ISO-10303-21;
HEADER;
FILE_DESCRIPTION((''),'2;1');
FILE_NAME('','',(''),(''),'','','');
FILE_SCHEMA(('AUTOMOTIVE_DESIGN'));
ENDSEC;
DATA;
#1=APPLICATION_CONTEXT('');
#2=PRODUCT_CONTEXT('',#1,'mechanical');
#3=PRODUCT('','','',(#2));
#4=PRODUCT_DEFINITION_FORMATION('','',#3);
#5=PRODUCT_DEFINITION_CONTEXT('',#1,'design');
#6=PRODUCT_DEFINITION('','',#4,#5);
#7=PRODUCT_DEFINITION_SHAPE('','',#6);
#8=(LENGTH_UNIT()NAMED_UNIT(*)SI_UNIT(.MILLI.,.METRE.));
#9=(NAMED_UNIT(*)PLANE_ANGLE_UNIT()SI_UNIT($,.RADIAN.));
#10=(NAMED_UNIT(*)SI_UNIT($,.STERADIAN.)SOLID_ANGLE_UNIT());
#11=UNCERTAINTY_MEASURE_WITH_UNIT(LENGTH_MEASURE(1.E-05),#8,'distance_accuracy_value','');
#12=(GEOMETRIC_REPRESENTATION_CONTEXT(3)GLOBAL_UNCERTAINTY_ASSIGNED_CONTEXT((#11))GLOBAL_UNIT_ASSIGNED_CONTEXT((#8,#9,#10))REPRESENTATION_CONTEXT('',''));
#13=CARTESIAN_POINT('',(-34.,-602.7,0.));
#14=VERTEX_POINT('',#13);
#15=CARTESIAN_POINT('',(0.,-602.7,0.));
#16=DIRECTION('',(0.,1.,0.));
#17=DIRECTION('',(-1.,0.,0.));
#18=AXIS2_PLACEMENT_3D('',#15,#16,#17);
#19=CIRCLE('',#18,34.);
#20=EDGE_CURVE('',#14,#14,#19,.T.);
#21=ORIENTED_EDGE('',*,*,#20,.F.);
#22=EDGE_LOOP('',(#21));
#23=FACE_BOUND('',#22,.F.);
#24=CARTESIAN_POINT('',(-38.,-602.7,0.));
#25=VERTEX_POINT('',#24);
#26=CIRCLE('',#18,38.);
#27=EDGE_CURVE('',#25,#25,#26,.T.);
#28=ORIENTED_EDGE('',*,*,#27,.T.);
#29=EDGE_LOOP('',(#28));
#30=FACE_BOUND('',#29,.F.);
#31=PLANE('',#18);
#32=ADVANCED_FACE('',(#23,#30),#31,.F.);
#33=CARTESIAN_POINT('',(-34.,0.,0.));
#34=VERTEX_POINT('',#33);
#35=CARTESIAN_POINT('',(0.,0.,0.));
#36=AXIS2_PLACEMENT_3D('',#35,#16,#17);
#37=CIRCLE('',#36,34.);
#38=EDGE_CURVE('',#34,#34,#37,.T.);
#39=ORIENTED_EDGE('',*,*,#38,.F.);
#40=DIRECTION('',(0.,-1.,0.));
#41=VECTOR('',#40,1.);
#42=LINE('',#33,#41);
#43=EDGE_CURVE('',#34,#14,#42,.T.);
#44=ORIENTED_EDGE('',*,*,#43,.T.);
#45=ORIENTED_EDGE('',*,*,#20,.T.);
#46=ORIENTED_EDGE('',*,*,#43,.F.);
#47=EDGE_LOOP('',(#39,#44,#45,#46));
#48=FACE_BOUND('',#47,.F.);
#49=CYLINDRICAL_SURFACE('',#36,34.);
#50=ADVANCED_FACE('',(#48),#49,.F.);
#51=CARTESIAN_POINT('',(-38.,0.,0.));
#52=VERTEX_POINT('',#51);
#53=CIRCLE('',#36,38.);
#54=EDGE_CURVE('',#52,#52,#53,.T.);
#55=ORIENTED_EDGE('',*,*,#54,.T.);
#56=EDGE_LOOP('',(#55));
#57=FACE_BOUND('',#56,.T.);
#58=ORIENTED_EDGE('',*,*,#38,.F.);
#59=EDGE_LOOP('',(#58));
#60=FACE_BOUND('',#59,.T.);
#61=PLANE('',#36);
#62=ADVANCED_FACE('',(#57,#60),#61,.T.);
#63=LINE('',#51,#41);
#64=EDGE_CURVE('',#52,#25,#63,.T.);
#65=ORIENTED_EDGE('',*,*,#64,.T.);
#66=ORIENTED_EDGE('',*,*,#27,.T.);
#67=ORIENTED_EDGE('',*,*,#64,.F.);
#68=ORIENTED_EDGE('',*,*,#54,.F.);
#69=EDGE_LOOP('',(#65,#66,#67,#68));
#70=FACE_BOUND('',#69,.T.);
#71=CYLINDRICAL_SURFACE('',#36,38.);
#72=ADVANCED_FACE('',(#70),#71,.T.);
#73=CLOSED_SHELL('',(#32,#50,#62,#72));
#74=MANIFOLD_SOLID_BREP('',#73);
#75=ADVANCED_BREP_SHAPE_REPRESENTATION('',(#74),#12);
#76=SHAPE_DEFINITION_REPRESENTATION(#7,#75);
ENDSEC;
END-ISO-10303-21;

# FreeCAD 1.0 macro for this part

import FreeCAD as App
import Part
import Sketcher

doc = App.newDocument("Part")
body = doc.addObject("PartDesign::Body", "Body")

# Sketch on XZ plane
sketch1 = doc.addObject("Sketcher::SketchObject", "Sketch")
body.addObject(sketch1)
sketch1.AttachmentSupport = (doc.XZ_Plane, [""])
sketch1.MapMode = "FlatFace"
sketch1.addGeometry(Part.Circle(App.Vector(0, 0, 0), App.Vector(0, 0, 1), 38), False)
sketch1.addGeometry(Part.Circle(App.Vector(0, 0, 0), App.Vector(0, 0, 1), 34), False)
sketch1.addConstraint(Sketcher.Constraint("Coincident", 0, 3, -1, 1))
sketch1.addConstraint(Sketcher.Constraint("Coincident", 1, 3, -1, 1))
sketch1.addConstraint(Sketcher.Constraint("Diameter", 0, 76.0))
sketch1.addConstraint(Sketcher.Constraint("Diameter", 1, 68.0))
pad1 = doc.addObject("PartDesign::Pad", "Pad")
body.addObject(pad1)
pad1.Profile = sketch1
pad1.Length = 602.7

doc.recompute()
